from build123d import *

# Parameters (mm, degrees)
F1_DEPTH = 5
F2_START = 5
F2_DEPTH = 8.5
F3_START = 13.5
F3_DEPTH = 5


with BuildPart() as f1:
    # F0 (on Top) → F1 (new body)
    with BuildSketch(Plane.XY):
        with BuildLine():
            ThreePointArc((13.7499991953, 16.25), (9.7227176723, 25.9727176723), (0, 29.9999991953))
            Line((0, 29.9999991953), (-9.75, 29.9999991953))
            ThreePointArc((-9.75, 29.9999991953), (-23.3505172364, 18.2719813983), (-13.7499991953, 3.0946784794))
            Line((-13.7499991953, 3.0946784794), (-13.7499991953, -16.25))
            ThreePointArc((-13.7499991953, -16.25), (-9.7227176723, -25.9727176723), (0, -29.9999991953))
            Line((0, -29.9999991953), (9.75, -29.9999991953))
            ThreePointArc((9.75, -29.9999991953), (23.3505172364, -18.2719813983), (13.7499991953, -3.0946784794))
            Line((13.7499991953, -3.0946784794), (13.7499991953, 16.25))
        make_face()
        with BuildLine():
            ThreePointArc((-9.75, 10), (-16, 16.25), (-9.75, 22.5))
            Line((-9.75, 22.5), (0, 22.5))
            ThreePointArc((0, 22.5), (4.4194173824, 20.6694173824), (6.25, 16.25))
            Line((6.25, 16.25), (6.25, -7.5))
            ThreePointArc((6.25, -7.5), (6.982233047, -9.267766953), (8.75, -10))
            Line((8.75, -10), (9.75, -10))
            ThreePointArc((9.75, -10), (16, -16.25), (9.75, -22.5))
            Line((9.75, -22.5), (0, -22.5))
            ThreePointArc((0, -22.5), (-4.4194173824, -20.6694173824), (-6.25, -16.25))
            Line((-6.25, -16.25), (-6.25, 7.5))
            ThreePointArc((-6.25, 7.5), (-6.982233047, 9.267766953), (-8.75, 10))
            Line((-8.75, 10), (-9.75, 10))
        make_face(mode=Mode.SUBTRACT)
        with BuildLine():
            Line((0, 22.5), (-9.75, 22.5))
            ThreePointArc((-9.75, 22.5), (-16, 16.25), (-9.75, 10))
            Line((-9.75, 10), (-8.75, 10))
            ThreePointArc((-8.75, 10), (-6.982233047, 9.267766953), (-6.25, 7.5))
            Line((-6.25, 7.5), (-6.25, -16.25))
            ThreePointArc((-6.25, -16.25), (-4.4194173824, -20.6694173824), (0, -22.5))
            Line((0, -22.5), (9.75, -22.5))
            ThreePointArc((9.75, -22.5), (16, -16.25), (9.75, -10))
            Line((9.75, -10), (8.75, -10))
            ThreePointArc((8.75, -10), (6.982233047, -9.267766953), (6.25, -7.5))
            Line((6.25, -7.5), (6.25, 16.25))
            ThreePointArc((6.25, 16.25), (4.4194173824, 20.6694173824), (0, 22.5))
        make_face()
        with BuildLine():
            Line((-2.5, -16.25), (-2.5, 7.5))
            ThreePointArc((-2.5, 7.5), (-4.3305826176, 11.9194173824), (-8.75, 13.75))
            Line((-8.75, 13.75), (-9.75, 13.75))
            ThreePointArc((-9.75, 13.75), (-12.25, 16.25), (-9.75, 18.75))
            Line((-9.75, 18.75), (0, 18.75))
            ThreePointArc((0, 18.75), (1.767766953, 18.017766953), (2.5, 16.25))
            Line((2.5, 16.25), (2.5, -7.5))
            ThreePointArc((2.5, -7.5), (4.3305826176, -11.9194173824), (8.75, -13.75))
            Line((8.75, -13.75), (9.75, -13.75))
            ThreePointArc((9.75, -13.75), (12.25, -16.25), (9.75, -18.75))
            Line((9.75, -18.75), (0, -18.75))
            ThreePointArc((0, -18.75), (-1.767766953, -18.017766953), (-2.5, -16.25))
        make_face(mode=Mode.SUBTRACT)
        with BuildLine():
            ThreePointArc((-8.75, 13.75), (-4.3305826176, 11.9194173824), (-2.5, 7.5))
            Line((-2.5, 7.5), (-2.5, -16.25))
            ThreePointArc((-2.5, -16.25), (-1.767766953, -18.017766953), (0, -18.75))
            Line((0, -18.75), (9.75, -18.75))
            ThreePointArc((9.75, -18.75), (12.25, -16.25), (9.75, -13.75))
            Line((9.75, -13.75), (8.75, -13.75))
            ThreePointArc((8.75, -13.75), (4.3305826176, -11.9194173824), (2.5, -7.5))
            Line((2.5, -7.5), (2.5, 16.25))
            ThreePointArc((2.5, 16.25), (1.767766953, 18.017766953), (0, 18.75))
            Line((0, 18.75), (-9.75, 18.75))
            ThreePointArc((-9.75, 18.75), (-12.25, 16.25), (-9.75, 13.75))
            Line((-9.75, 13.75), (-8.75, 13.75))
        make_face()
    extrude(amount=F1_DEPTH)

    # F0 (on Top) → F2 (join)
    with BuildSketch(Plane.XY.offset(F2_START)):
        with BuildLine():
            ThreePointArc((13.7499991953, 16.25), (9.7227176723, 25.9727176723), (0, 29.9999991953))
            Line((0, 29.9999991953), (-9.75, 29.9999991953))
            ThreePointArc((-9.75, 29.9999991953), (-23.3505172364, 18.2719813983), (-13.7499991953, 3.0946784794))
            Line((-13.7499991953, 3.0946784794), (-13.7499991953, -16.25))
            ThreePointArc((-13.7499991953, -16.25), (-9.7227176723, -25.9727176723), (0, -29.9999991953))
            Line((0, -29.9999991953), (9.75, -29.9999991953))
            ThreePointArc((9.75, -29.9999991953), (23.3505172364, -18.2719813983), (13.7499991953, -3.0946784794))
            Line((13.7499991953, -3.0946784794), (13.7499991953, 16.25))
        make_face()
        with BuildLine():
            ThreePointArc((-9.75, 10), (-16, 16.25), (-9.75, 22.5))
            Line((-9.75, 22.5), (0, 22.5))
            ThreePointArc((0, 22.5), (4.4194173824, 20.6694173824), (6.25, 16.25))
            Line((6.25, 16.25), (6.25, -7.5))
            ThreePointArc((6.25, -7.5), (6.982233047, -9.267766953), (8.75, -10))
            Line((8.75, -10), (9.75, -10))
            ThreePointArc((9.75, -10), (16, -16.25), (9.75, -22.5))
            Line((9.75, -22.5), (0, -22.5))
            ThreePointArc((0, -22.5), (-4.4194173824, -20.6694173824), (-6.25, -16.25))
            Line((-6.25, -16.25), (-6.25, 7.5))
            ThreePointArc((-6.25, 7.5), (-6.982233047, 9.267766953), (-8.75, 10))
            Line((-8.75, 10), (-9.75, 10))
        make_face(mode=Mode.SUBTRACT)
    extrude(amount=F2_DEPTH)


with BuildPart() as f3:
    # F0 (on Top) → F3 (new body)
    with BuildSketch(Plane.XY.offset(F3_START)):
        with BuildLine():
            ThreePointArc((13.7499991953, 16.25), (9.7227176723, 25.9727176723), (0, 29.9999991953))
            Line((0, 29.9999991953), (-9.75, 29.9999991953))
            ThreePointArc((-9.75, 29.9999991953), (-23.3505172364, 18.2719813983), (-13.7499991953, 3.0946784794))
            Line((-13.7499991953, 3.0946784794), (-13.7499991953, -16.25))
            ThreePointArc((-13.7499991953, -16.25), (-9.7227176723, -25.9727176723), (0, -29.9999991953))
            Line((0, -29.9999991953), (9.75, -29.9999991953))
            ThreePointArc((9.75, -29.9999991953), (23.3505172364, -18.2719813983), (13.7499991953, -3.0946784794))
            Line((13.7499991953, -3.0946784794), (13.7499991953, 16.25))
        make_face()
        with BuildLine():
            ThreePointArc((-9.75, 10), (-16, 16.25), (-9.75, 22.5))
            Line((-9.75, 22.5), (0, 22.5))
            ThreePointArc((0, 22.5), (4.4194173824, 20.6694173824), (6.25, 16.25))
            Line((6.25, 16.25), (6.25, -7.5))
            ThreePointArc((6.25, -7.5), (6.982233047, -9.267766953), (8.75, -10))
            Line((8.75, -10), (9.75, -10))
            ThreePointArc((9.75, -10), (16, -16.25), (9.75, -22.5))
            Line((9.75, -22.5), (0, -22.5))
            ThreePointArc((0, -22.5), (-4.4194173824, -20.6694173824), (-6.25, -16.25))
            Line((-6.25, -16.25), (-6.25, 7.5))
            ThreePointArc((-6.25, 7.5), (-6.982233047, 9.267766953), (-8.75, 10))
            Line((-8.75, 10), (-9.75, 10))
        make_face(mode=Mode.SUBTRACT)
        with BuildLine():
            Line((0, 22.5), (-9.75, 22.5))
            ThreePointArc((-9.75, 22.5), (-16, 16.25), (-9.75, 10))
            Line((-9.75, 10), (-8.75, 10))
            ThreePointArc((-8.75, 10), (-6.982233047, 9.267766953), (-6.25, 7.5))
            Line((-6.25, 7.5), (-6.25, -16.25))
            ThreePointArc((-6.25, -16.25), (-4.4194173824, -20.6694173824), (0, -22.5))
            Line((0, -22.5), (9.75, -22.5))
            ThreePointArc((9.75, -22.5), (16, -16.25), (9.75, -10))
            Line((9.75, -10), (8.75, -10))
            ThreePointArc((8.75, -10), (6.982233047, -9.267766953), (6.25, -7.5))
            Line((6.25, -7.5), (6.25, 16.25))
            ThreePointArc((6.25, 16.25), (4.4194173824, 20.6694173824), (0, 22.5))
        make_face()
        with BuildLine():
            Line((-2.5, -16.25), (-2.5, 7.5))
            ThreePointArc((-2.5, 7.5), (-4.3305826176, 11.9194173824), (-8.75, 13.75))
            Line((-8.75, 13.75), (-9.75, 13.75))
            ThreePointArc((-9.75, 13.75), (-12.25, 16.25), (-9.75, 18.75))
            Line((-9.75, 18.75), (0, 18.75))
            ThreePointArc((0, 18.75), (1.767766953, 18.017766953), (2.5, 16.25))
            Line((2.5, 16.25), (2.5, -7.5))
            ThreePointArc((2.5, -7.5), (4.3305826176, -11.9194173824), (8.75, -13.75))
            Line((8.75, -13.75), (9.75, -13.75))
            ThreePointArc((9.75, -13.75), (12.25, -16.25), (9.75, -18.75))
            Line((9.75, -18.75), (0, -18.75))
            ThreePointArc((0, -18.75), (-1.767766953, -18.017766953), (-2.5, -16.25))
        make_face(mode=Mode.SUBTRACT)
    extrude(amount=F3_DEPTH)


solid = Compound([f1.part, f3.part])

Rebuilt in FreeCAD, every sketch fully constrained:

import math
import FreeCAD as App
import Part
import Sketcher

doc = App.newDocument("Part")
body = doc.addObject("PartDesign::Body", "Body")

sketch1 = body.newObject("Sketcher::SketchObject", "Sketch")
sketch1.AttachmentSupport = (doc.getObject("XY_Plane"), [""])
sketch1.MapMode = "FlatFace"
sketch1.addGeometry(Part.ArcOfCircle(Part.Circle(App.Vector(0, 16, 0), App.Vector(0, 0, 1), 14), math.radians(0), math.radians(90)), False)
sketch1.addGeometry(Part.LineSegment(App.Vector(0, 30, 0), App.Vector(-10, 30, 0)), False)
sketch1.addGeometry(Part.ArcOfCircle(Part.Circle(App.Vector(-10, 16, 0), App.Vector(0, 0, 1), 14), math.radians(90), math.radians(253)), False)
sketch1.addGeometry(Part.LineSegment(App.Vector(-14, 3, 0), App.Vector(-14, -16, 0)), False)
sketch1.addGeometry(Part.ArcOfCircle(Part.Circle(App.Vector(0, -16, 0), App.Vector(0, 0, 1), 14), math.radians(180), math.radians(270)), False)
sketch1.addGeometry(Part.LineSegment(App.Vector(0, -30, 0), App.Vector(10, -30, 0)), False)
sketch1.addGeometry(Part.ArcOfCircle(Part.Circle(App.Vector(10, -16, 0), App.Vector(0, 0, 1), 14), math.radians(-90), math.radians(73)), False)
sketch1.addGeometry(Part.LineSegment(App.Vector(14, -3, 0), App.Vector(14, 16, 0)), False)
sketch1.addConstraint(Sketcher.Constraint("Tangent", 0, 2, 1, 1))
sketch1.addConstraint(Sketcher.Constraint("Tangent", 1, 2, 2, 1))
sketch1.addConstraint(Sketcher.Constraint("Coincident", 2, 2, 3, 1))
sketch1.addConstraint(Sketcher.Constraint("Tangent", 3, 2, 4, 1))
sketch1.addConstraint(Sketcher.Constraint("Tangent", 4, 2, 5, 1))
sketch1.addConstraint(Sketcher.Constraint("Tangent", 5, 2, 6, 1))
sketch1.addConstraint(Sketcher.Constraint("Coincident", 6, 2, 7, 1))
sketch1.addConstraint(Sketcher.Constraint("Tangent", 7, 2, 0, 1))
sketch1.addConstraint(Sketcher.Constraint("Horizontal", 1))
sketch1.addConstraint(Sketcher.Constraint("Vertical", 3))
sketch1.addConstraint(Sketcher.Constraint("Horizontal", 5))
sketch1.addConstraint(Sketcher.Constraint("Vertical", 7))
sketch1.addConstraint(Sketcher.Constraint("Equal", 0, 2))
sketch1.addConstraint(Sketcher.Constraint("Equal", 2, 4))
sketch1.addConstraint(Sketcher.Constraint("Equal", 4, 6))
sketch1.addConstraint(Sketcher.Constraint("Symmetric", 0, 3, 4, 3, -1, 1))
sketch1.addConstraint(Sketcher.Constraint("PointOnObject", 0, 3, -2))
sketch1.addConstraint(Sketcher.Constraint("Equal", 1, 5))
sketch1.addConstraint(Sketcher.Constraint("Radius", 0, 13.749999))
sketch1.addConstraint(Sketcher.Constraint("DistanceY", -1, 1, 0, 2, 29.999999))
sketch1.addConstraint(Sketcher.Constraint("DistanceX", 2, 2, 2, 3, 3.999999))
pad1 = body.newObject("PartDesign::Pad", "Pad")
pad1.Profile = sketch1
pad1.Length = 5

sketch2 = body.newObject("Sketcher::SketchObject", "Sketch001")
sketch2.AttachmentSupport = (doc.getObject("XY_Plane"), [""])
sketch2.MapMode = "FlatFace"
sketch2.AttachmentOffset = App.Placement(App.Vector(0, 0, 5), App.Rotation())
sketch2.addGeometry(Part.ArcOfCircle(Part.Circle(App.Vector(0, 16.2, 0), App.Vector(0, 0, 1), 13.7), math.radians(0), math.radians(90)), False)
sketch2.addGeometry(Part.LineSegment(App.Vector(0, 30, 0), App.Vector(-9.8, 30, 0)), False)
sketch2.addGeometry(Part.ArcOfCircle(Part.Circle(App.Vector(-9.8, 16.2, 0), App.Vector(0, 0, 1), 13.7), math.radians(90), math.radians(253)), False)
sketch2.addGeometry(Part.LineSegment(App.Vector(-13.7, 3.1, 0), App.Vector(-13.7, -16.2, 0)), False)
sketch2.addGeometry(Part.ArcOfCircle(Part.Circle(App.Vector(0, -16.2, 0), App.Vector(0, 0, 1), 13.7), math.radians(180), math.radians(270)), False)
sketch2.addGeometry(Part.LineSegment(App.Vector(0, -30, 0), App.Vector(9.8, -30, 0)), False)
sketch2.addGeometry(Part.ArcOfCircle(Part.Circle(App.Vector(9.8, -16.2, 0), App.Vector(0, 0, 1), 13.7), math.radians(-90), math.radians(73)), False)
sketch2.addGeometry(Part.LineSegment(App.Vector(13.7, -3.1, 0), App.Vector(13.7, 16.2, 0)), False)
sketch2.addGeometry(Part.LineSegment(App.Vector(-8.8, 10, 0), App.Vector(-9.8, 10, 0)), False)
sketch2.addGeometry(Part.ArcOfCircle(Part.Circle(App.Vector(-9.8, 16.2, 0), App.Vector(0, 0, 1), 6.2), math.radians(90), math.radians(270)), False)
sketch2.addGeometry(Part.LineSegment(App.Vector(-9.8, 22.5, 0), App.Vector(0, 22.5, 0)), False)
sketch2.addGeometry(Part.ArcOfCircle(Part.Circle(App.Vector(0, 16.2, 0), App.Vector(0, 0, 1), 6.2), math.radians(0), math.radians(90)), False)
sketch2.addGeometry(Part.LineSegment(App.Vector(6.2, 16.2, 0), App.Vector(6.2, -7.5, 0)), False)
sketch2.addGeometry(Part.ArcOfCircle(Part.Circle(App.Vector(8.8, -7.5, 0), App.Vector(0, 0, 1), 2.5), math.radians(180), math.radians(270)), False)
sketch2.addGeometry(Part.LineSegment(App.Vector(8.8, -10, 0), App.Vector(9.8, -10, 0)), False)
sketch2.addGeometry(Part.ArcOfCircle(Part.Circle(App.Vector(9.8, -16.2, 0), App.Vector(0, 0, 1), 6.2), math.radians(-90), math.radians(90)), False)
sketch2.addGeometry(Part.LineSegment(App.Vector(9.8, -22.5, 0), App.Vector(0, -22.5, 0)), False)
sketch2.addGeometry(Part.ArcOfCircle(Part.Circle(App.Vector(0, -16.2, 0), App.Vector(0, 0, 1), 6.2), math.radians(180), math.radians(270)), False)
sketch2.addGeometry(Part.LineSegment(App.Vector(-6.2, -16.2, 0), App.Vector(-6.2, 7.5, 0)), False)
sketch2.addGeometry(Part.ArcOfCircle(Part.Circle(App.Vector(-8.8, 7.5, 0), App.Vector(0, 0, 1), 2.5), math.radians(0), math.radians(90)), False)
sketch2.addConstraint(Sketcher.Constraint("Tangent", 0, 2, 1, 1))
sketch2.addConstraint(Sketcher.Constraint("Tangent", 1, 2, 2, 1))
sketch2.addConstraint(Sketcher.Constraint("Coincident", 2, 2, 3, 1))
sketch2.addConstraint(Sketcher.Constraint("Tangent", 3, 2, 4, 1))
sketch2.addConstraint(Sketcher.Constraint("Tangent", 4, 2, 5, 1))
sketch2.addConstraint(Sketcher.Constraint("Tangent", 5, 2, 6, 1))
sketch2.addConstraint(Sketcher.Constraint("Coincident", 6, 2, 7, 1))
sketch2.addConstraint(Sketcher.Constraint("Tangent", 7, 2, 0, 1))
sketch2.addConstraint(Sketcher.Constraint("Tangent", 8, 2, 9, 2))
sketch2.addConstraint(Sketcher.Constraint("Tangent", 9, 1, 10, 1))
sketch2.addConstraint(Sketcher.Constraint("Tangent", 10, 2, 11, 2))
sketch2.addConstraint(Sketcher.Constraint("Tangent", 11, 1, 12, 1))
sketch2.addConstraint(Sketcher.Constraint("Tangent", 12, 2, 13, 1))
sketch2.addConstraint(Sketcher.Constraint("Tangent", 13, 2, 14, 1))
sketch2.addConstraint(Sketcher.Constraint("Tangent", 14, 2, 15, 2))
sketch2.addConstraint(Sketcher.Constraint("Tangent", 15, 1, 16, 1))
sketch2.addConstraint(Sketcher.Constraint("Tangent", 16, 2, 17, 2))
sketch2.addConstraint(Sketcher.Constraint("Tangent", 17, 1, 18, 1))
sketch2.addConstraint(Sketcher.Constraint("Tangent", 18, 2, 19, 1))
sketch2.addConstraint(Sketcher.Constraint("Tangent", 19, 2, 8, 1))
sketch2.addConstraint(Sketcher.Constraint("Horizontal", 1))
sketch2.addConstraint(Sketcher.Constraint("Vertical", 3))
sketch2.addConstraint(Sketcher.Constraint("Horizontal", 5))
sketch2.addConstraint(Sketcher.Constraint("Vertical", 7))
sketch2.addConstraint(Sketcher.Constraint("Horizontal", 8))
sketch2.addConstraint(Sketcher.Constraint("Horizontal", 10))
sketch2.addConstraint(Sketcher.Constraint("Vertical", 12))
sketch2.addConstraint(Sketcher.Constraint("Horizontal", 14))
sketch2.addConstraint(Sketcher.Constraint("Horizontal", 16))
sketch2.addConstraint(Sketcher.Constraint("Vertical", 18))
sketch2.addConstraint(Sketcher.Constraint("Coincident", 9, 3, 2, 3))
sketch2.addConstraint(Sketcher.Constraint("Coincident", 11, 3, 0, 3))
sketch2.addConstraint(Sketcher.Constraint("Coincident", 15, 3, 6, 3))
sketch2.addConstraint(Sketcher.Constraint("Coincident", 17, 3, 4, 3))
sketch2.addConstraint(Sketcher.Constraint("Equal", 0, 2))
sketch2.addConstraint(Sketcher.Constraint("Equal", 2, 4))
sketch2.addConstraint(Sketcher.Constraint("Equal", 4, 6))
sketch2.addConstraint(Sketcher.Constraint("Equal", 11, 15))
sketch2.addConstraint(Sketcher.Constraint("Equal", 13, 19))
sketch2.addConstraint(Sketcher.Constraint("Symmetric", 0, 3, 4, 3, -1, 1))
sketch2.addConstraint(Sketcher.Constraint("PointOnObject", 0, 3, -2))
sketch2.addConstraint(Sketcher.Constraint("Equal", 1, 5))
sketch2.addConstraint(Sketcher.Constraint("Radius", 13, 2.5))
sketch2.addConstraint(Sketcher.Constraint("DistanceX", 8, 2, 8, 1, 1.0))
sketch2.addConstraint(Sketcher.Constraint("Radius", 0, 13.749999))
sketch2.addConstraint(Sketcher.Constraint("Radius", 9, 6.25))
sketch2.addConstraint(Sketcher.Constraint("DistanceY", -1, 1, 0, 2, 29.999999))
pad2 = body.newObject("PartDesign::Pad", "Pad001")
pad2.Profile = sketch2
pad2.Length = 8.5
body2 = doc.addObject("PartDesign::Body", "Body001")

sketch3 = body2.newObject("Sketcher::SketchObject", "Sketch002")
sketch3.AttachmentSupport = (doc.getObject("XY_Plane001"), [""])
sketch3.MapMode = "FlatFace"
sketch3.AttachmentOffset = App.Placement(App.Vector(0, 0, 13.5), App.Rotation())
sketch3.addGeometry(Part.ArcOfCircle(Part.Circle(App.Vector(0, 16.2, 0), App.Vector(0, 0, 1), 13.7), math.radians(0), math.radians(90)), False)
sketch3.addGeometry(Part.LineSegment(App.Vector(0, 30, 0), App.Vector(-9.8, 30, 0)), False)
sketch3.addGeometry(Part.ArcOfCircle(Part.Circle(App.Vector(-9.8, 16.2, 0), App.Vector(0, 0, 1), 13.7), math.radians(90), math.radians(253)), False)
sketch3.addGeometry(Part.LineSegment(App.Vector(-13.7, 3.1, 0), App.Vector(-13.7, -16.2, 0)), False)
sketch3.addGeometry(Part.ArcOfCircle(Part.Circle(App.Vector(0, -16.2, 0), App.Vector(0, 0, 1), 13.7), math.radians(180), math.radians(270)), False)
sketch3.addGeometry(Part.LineSegment(App.Vector(0, -30, 0), App.Vector(9.8, -30, 0)), False)
sketch3.addGeometry(Part.ArcOfCircle(Part.Circle(App.Vector(9.8, -16.2, 0), App.Vector(0, 0, 1), 13.7), math.radians(-90), math.radians(73)), False)
sketch3.addGeometry(Part.LineSegment(App.Vector(13.7, -3.1, 0), App.Vector(13.7, 16.2, 0)), False)
sketch3.addGeometry(Part.ArcOfCircle(Part.Circle(App.Vector(0, -16.2, 0), App.Vector(0, 0, 1), 2.5), math.radians(180), math.radians(270)), False)
sketch3.addGeometry(Part.LineSegment(App.Vector(-2.5, -16.2, 0), App.Vector(-2.5, 7.5, 0)), False)
sketch3.addGeometry(Part.ArcOfCircle(Part.Circle(App.Vector(-8.8, 7.5, 0), App.Vector(0, 0, 1), 6.2), math.radians(0), math.radians(90)), False)
sketch3.addGeometry(Part.LineSegment(App.Vector(-8.8, 13.8, 0), App.Vector(-9.8, 13.8, 0)), False)
sketch3.addGeometry(Part.ArcOfCircle(Part.Circle(App.Vector(-9.8, 16.2, 0), App.Vector(0, 0, 1), 2.5), math.radians(90), math.radians(270)), False)
sketch3.addGeometry(Part.LineSegment(App.Vector(-9.8, 18.8, 0), App.Vector(0, 18.8, 0)), False)
sketch3.addGeometry(Part.ArcOfCircle(Part.Circle(App.Vector(0, 16.2, 0), App.Vector(0, 0, 1), 2.5), math.radians(0), math.radians(90)), False)
sketch3.addGeometry(Part.LineSegment(App.Vector(2.5, 16.2, 0), App.Vector(2.5, -7.5, 0)), False)
sketch3.addGeometry(Part.ArcOfCircle(Part.Circle(App.Vector(8.8, -7.5, 0), App.Vector(0, 0, 1), 6.2), math.radians(180), math.radians(270)), False)
sketch3.addGeometry(Part.LineSegment(App.Vector(8.8, -13.8, 0), App.Vector(9.8, -13.8, 0)), False)
sketch3.addGeometry(Part.ArcOfCircle(Part.Circle(App.Vector(9.8, -16.2, 0), App.Vector(0, 0, 1), 2.5), math.radians(-90), math.radians(90)), False)
sketch3.addGeometry(Part.LineSegment(App.Vector(9.8, -18.8, 0), App.Vector(0, -18.8, 0)), False)
sketch3.addConstraint(Sketcher.Constraint("Tangent", 0, 2, 1, 1))
sketch3.addConstraint(Sketcher.Constraint("Tangent", 1, 2, 2, 1))
sketch3.addConstraint(Sketcher.Constraint("Coincident", 2, 2, 3, 1))
sketch3.addConstraint(Sketcher.Constraint("Tangent", 3, 2, 4, 1))
sketch3.addConstraint(Sketcher.Constraint("Tangent", 4, 2, 5, 1))
sketch3.addConstraint(Sketcher.Constraint("Tangent", 5, 2, 6, 1))
sketch3.addConstraint(Sketcher.Constraint("Coincident", 6, 2, 7, 1))
sketch3.addConstraint(Sketcher.Constraint("Tangent", 7, 2, 0, 1))
sketch3.addConstraint(Sketcher.Constraint("Tangent", 8, 1, 9, 1))
sketch3.addConstraint(Sketcher.Constraint("Tangent", 9, 2, 10, 1))
sketch3.addConstraint(Sketcher.Constraint("Tangent", 10, 2, 11, 1))
sketch3.addConstraint(Sketcher.Constraint("Tangent", 11, 2, 12, 2))
sketch3.addConstraint(Sketcher.Constraint("Tangent", 12, 1, 13, 1))
sketch3.addConstraint(Sketcher.Constraint("Tangent", 13, 2, 14, 2))
sketch3.addConstraint(Sketcher.Constraint("Tangent", 14, 1, 15, 1))
sketch3.addConstraint(Sketcher.Constraint("Tangent", 15, 2, 16, 1))
sketch3.addConstraint(Sketcher.Constraint("Tangent", 16, 2, 17, 1))
sketch3.addConstraint(Sketcher.Constraint("Tangent", 17, 2, 18, 2))
sketch3.addConstraint(Sketcher.Constraint("Tangent", 18, 1, 19, 1))
sketch3.addConstraint(Sketcher.Constraint("Tangent", 19, 2, 8, 2))
sketch3.addConstraint(Sketcher.Constraint("Horizontal", 1))
sketch3.addConstraint(Sketcher.Constraint("Vertical", 3))
sketch3.addConstraint(Sketcher.Constraint("Horizontal", 5))
sketch3.addConstraint(Sketcher.Constraint("Vertical", 7))
sketch3.addConstraint(Sketcher.Constraint("Vertical", 9))
sketch3.addConstraint(Sketcher.Constraint("Horizontal", 11))
sketch3.addConstraint(Sketcher.Constraint("Horizontal", 13))
sketch3.addConstraint(Sketcher.Constraint("Vertical", 15))
sketch3.addConstraint(Sketcher.Constraint("Horizontal", 17))
sketch3.addConstraint(Sketcher.Constraint("Horizontal", 19))
sketch3.addConstraint(Sketcher.Constraint("Coincident", 8, 3, 4, 3))
sketch3.addConstraint(Sketcher.Constraint("Coincident", 12, 3, 2, 3))
sketch3.addConstraint(Sketcher.Constraint("Coincident", 14, 3, 0, 3))
sketch3.addConstraint(Sketcher.Constraint("Coincident", 18, 3, 6, 3))
sketch3.addConstraint(Sketcher.Constraint("Equal", 0, 2))
sketch3.addConstraint(Sketcher.Constraint("Equal", 2, 4))
sketch3.addConstraint(Sketcher.Constraint("Equal", 4, 6))
sketch3.addConstraint(Sketcher.Constraint("Equal", 8, 12))
sketch3.addConstraint(Sketcher.Constraint("Equal", 10, 16))
sketch3.addConstraint(Sketcher.Constraint("Symmetric", 0, 3, 4, 3, -1, 1))
sketch3.addConstraint(Sketcher.Constraint("PointOnObject", 0, 3, -2))
sketch3.addConstraint(Sketcher.Constraint("Equal", 1, 5))
sketch3.addConstraint(Sketcher.Constraint("Radius", 8, 2.5))
sketch3.addConstraint(Sketcher.Constraint("DistanceX", 11, 2, 11, 1, 1.0))
sketch3.addConstraint(Sketcher.Constraint("Radius", 0, 13.749999))
sketch3.addConstraint(Sketcher.Constraint("Radius", 10, 6.25))
sketch3.addConstraint(Sketcher.Constraint("DistanceY", -1, 1, 0, 2, 29.999999))
pad3 = body2.newObject("PartDesign::Pad", "Pad002")
pad3.Profile = sketch3
pad3.Length = 5

doc.recompute()
